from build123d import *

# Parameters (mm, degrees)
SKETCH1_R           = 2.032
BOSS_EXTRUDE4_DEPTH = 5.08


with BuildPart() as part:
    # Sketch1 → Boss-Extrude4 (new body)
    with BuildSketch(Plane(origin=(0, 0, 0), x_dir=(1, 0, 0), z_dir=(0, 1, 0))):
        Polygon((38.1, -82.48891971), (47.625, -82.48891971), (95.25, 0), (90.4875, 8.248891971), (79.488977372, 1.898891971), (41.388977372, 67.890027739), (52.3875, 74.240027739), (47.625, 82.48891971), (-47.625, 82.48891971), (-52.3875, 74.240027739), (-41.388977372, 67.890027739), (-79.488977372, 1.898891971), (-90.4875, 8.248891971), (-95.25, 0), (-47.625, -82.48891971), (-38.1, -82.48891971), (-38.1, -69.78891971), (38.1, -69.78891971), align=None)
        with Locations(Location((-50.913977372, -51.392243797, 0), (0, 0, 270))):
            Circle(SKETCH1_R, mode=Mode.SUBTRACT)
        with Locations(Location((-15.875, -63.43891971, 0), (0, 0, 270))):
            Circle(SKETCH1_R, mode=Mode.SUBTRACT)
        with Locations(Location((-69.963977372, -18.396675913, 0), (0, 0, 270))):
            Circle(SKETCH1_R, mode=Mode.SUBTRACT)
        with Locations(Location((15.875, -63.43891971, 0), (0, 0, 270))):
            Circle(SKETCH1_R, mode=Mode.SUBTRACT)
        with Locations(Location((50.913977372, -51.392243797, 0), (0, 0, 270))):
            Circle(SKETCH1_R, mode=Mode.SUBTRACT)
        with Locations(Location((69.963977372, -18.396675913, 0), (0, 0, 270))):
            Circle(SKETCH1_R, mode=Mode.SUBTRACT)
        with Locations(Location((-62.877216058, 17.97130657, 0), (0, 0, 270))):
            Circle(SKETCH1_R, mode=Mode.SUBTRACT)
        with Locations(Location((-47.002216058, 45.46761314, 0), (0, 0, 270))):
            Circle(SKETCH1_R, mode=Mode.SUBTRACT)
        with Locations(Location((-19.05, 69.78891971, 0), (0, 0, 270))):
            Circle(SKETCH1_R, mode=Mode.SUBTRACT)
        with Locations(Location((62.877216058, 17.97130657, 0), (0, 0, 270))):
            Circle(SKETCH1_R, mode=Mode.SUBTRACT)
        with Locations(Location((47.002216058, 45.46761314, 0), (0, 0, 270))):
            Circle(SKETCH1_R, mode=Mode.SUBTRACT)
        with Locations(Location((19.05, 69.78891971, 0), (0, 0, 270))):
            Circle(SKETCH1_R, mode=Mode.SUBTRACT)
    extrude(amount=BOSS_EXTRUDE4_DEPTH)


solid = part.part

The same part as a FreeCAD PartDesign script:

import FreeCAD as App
import Part
import Sketcher
Q = App.Units.Quantity


def add_polygon(sketch, points):
    """Adds a closed chain of lines whose ends are joined by coincident constraints."""
    first, n = sketch.GeometryCount, len(points)
    for a, b in zip(points, points[1:] + points[:1]):
        sketch.addGeometry(Part.LineSegment(App.Vector(*a, 0), App.Vector(*b, 0)), False)
    for i in range(n):
        sketch.addConstraint(Sketcher.Constraint("Coincident", first + i, 2, first + (i + 1) % n, 1))

doc = App.newDocument("Part")
body = doc.addObject("PartDesign::Body", "Body")

# Sketch on XZ plane
sketch1 = doc.addObject("Sketcher::SketchObject", "Sketch")
body.addObject(sketch1)
sketch1.AttachmentSupport = (doc.XZ_Plane, [""])
sketch1.MapMode = "FlatFace"
add_polygon(sketch1, [(38.1, 82.48892), (47.625, 82.48892), (95.25, 0), (90.4875, -8.248892), (79.488977, -1.898892), (41.388977, -67.890028), (52.3875, -74.240028), (47.625, -82.48892), (-47.625, -82.48892), (-52.3875, -74.240028), (-41.388977, -67.890028), (-79.488977, -1.898892), (-90.4875, -8.248892), (-95.25, 0), (-47.625, 82.48892), (-38.1, 82.48892), (-38.1, 69.78892), (38.1, 69.78892)])  # lines 0-17
sketch1.addGeometry(Part.Circle(App.Vector(-50.913977, 51.392244, 0), App.Vector(0, 0, 1), 2.032), False)  # 18
sketch1.addGeometry(Part.Circle(App.Vector(-15.875, 63.43892, 0), App.Vector(0, 0, 1), 2.032), False)  # 19
sketch1.addGeometry(Part.Circle(App.Vector(-69.963977, 18.396676, 0), App.Vector(0, 0, 1), 2.032), False)  # 20
sketch1.addGeometry(Part.Circle(App.Vector(15.875, 63.43892, 0), App.Vector(0, 0, 1), 2.032), False)  # 21
sketch1.addGeometry(Part.Circle(App.Vector(50.913977, 51.392244, 0), App.Vector(0, 0, 1), 2.032), False)  # 22
sketch1.addGeometry(Part.Circle(App.Vector(69.963977, 18.396676, 0), App.Vector(0, 0, 1), 2.032), False)  # 23
sketch1.addGeometry(Part.Circle(App.Vector(-62.877216, -17.971307, 0), App.Vector(0, 0, 1), 2.032), False)  # 24
sketch1.addGeometry(Part.Circle(App.Vector(-47.002216, -45.467613, 0), App.Vector(0, 0, 1), 2.032), False)  # 25
sketch1.addGeometry(Part.Circle(App.Vector(-19.05, -69.78892, 0), App.Vector(0, 0, 1), 2.032), False)  # 26
sketch1.addGeometry(Part.Circle(App.Vector(62.877216, -17.971307, 0), App.Vector(0, 0, 1), 2.032), False)  # 27
sketch1.addGeometry(Part.Circle(App.Vector(19.05, -69.78892, 0), App.Vector(0, 0, 1), 2.032), False)  # 28
sketch1.addGeometry(Part.Circle(App.Vector(47.002216, -45.467613, 0), App.Vector(0, 0, 1), 2.032), False)  # 29
sketch1.addConstraint([
    Sketcher.Constraint("Horizontal", 0),
    Sketcher.Constraint("Horizontal", 7),
    Sketcher.Constraint("Horizontal", 14),
    Sketcher.Constraint("Vertical", 15),
    Sketcher.Constraint("Horizontal", 16),
    Sketcher.Constraint("Vertical", 17),
    Sketcher.Constraint("Equal", 18, 19),
    Sketcher.Constraint("Equal", 19, 20),
    Sketcher.Constraint("Equal", 20, 21),
    Sketcher.Constraint("Equal", 21, 22),
    Sketcher.Constraint("Equal", 22, 23),
    Sketcher.Constraint("Equal", 23, 24),
    Sketcher.Constraint("Equal", 24, 25),
    Sketcher.Constraint("Equal", 25, 26),
    Sketcher.Constraint("Equal", 26, 27),
    Sketcher.Constraint("Equal", 27, 28),
    Sketcher.Constraint("Equal", 28, 29),
    Sketcher.Constraint("Symmetric", 0, 2, 7, 2, -1, 1),
    Sketcher.Constraint("Symmetric", 1, 2, 12, 2, -1, 1),
    Sketcher.Constraint("Symmetric", 6, 2, 13, 2, -1, 1),
    Sketcher.Constraint("Symmetric", 19, 3, 21, 3, -2),
    Sketcher.Constraint("Symmetric", 18, 3, 22, 3, -2),
    Sketcher.Constraint("Symmetric", 20, 3, 23, 3, -2),
    Sketcher.Constraint("Symmetric", 24, 3, 27, 3, -2),
    Sketcher.Constraint("Symmetric", 26, 3, 28, 3, -2),
    Sketcher.Constraint("Symmetric", 25, 3, 29, 3, -2),
    Sketcher.Constraint("Symmetric", 5, 2, 8, 2, -2),
    Sketcher.Constraint("Symmetric", 4, 2, 9, 2, -2),
    Sketcher.Constraint("Symmetric", 3, 2, 10, 2, -2),
    Sketcher.Constraint("Symmetric", 2, 2, 11, 2, -2),
    Sketcher.Constraint("PointOnObject", 1, 2, -1),
    Sketcher.Constraint("Perpendicular", 2, 3),
    Sketcher.Constraint("Perpendicular", 3, 4),
    Sketcher.Constraint("Perpendicular", 4, 5),
    Sketcher.Constraint("Perpendicular", 5, 6),
    Sketcher.Constraint("Parallel", 1, 8),
    Sketcher.Constraint("Perpendicular", 8, 9),
    Sketcher.Constraint("Equal", 0, 14),
    Sketcher.Constraint("Equal", 2, 6),
    Sketcher.Constraint("Diameter", 18, Q("0.16 in")),
    Sketcher.Constraint("DistanceX", 16, 1, 16, 2, Q("3 in")),
    Sketcher.Constraint("Distance", 4, Q("3 in")),
    Sketcher.Constraint("DistanceY", 15, 2, 15, 1, Q("0.5 in")),
    Sketcher.Constraint("Angle", 1, Q("-60 deg")),
    Sketcher.Constraint("Distance", 3, Q("0.5 in")),
    Sketcher.Constraint("DistanceX", 7, 2, 7, 1, Q("3.75 in")),
    Sketcher.Constraint("DistanceX", 26, 3, 28, 3, Q("1.5 in")),
    Sketcher.Constraint("DistanceX", 19, 3, 0, 2, Q("2.5 in")),
    Sketcher.Constraint("DistanceY", 6, 2, 28, 3, Q("0.5 in")),
    Sketcher.Constraint("Distance", 1, Q("3.75 in")),
    Sketcher.Constraint("DistanceX", 20, 3, 18, 3, Q("0.75 in")),
    Sketcher.Constraint("DistanceY", 21, 3, 0, 2, Q("0.75 in")),
    Sketcher.Constraint("DistanceX", 24, 3, 25, 3, Q("0.625 in")),
    Sketcher.Constraint("DistanceX", 23, 3, 3, 2, Q("0.375 in")),
    Sketcher.Constraint("DistanceX", 20, 3, 24, 3, 7.086761),
    Sketcher.Constraint("DistanceY", 24, 3, 18, 3, 69.36355),
    Sketcher.Constraint("DistanceY", 25, 3, 20, 3, 63.864289),
    Sketcher.Constraint("DistanceY", 29, 3, 2, 2, 37.218721),
    Sketcher.Constraint("DistanceY", 4, 2, 27, 3, 49.918721),
])
pad1 = doc.addObject("PartDesign::Pad", "Pad")
body.addObject(pad1)
pad1.Profile = sketch1
pad1.Length = Q("0.2 in")
pad1.Reversed = True

doc.recompute()
